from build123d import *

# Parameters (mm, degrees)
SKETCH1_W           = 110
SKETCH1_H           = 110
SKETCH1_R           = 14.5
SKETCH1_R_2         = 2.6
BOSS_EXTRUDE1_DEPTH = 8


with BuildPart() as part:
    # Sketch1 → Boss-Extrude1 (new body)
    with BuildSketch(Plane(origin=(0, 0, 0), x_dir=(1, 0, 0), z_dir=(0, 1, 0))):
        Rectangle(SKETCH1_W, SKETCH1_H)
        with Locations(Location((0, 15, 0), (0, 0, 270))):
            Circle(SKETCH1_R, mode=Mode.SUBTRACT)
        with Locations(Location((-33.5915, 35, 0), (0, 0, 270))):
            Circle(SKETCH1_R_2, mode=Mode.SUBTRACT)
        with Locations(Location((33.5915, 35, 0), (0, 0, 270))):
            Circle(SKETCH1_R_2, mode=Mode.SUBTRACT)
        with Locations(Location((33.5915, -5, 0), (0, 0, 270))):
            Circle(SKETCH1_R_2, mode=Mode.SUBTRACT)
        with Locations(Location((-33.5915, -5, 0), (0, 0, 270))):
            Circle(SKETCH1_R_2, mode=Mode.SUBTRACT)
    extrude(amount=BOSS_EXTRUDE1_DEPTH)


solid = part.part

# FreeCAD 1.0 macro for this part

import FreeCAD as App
import Part
import Sketcher

V = App.Vector


def add_polygon(sketch, points):
    """Adds a closed chain of lines whose ends are joined by coincident constraints."""
    first, n = sketch.GeometryCount, len(points)
    for a, b in zip(points, points[1:] + points[:1]):
        sketch.addGeometry(Part.LineSegment(App.Vector(*a, 0), App.Vector(*b, 0)), False)
    for i in range(n):
        sketch.addConstraint(Sketcher.Constraint("Coincident", first + i, 2, first + (i + 1) % n, 1))

doc = App.newDocument("Part")
body = doc.addObject("PartDesign::Body", "Body")

# Sketch on XZ plane
sketch1 = doc.addObject("Sketcher::SketchObject", "Sketch")
body.addObject(sketch1)
sketch1.AttachmentSupport = (doc.XZ_Plane, [""])
sketch1.MapMode = "FlatFace"
add_polygon(sketch1, [(-55, -55), (-55, 55), (55, 55), (55, -55)])  # lines 0-3
sketch1.addGeometry(Part.Circle(V(-33.6, 5, 0), V(0, 0, 1), 2.6), False)  # 4
sketch1.addGeometry(Part.Circle(V(33.6, 5, 0), V(0, 0, 1), 2.6), False)  # 5
sketch1.addGeometry(Part.Circle(V(-33.6, -35, 0), V(0, 0, 1), 2.6), False)  # 6
sketch1.addGeometry(Part.Circle(V(0, -15, 0), V(0, 0, 1), 14.5), False)  # 7
sketch1.addGeometry(Part.Circle(V(33.6, -35, 0), V(0, 0, 1), 2.6), False)  # 8
sketch1.addConstraint([
    Sketcher.Constraint("Vertical", 0),
    Sketcher.Constraint("Horizontal", 1),
    Sketcher.Constraint("Vertical", 2),
    Sketcher.Constraint("Horizontal", 3),
    Sketcher.Constraint("Equal", 4, 5),
    Sketcher.Constraint("Equal", 5, 6),
    Sketcher.Constraint("Equal", 6, 8),
    Sketcher.Constraint("Symmetric", 0, 2, 2, 2, -1, 1),
    Sketcher.Constraint("Symmetric", 4, 3, 5, 3, -2),
    Sketcher.Constraint("Symmetric", 6, 3, 8, 3, -2),
    Sketcher.Constraint("PointOnObject", 7, 3, -2),
    Sketcher.Constraint("Vertical", 4, 3, 6, 3),
    Sketcher.Constraint("Equal", 3, 0),
    Sketcher.Constraint("Diameter", 7, 29.0),
    Sketcher.Constraint("Diameter", 4, 5.2),
    Sketcher.Constraint("DistanceX", 1, 1, 1, 2, 110.0),
    Sketcher.Constraint("DistanceY", -1, 1, 4, 3, 5.0),
    Sketcher.Constraint("DistanceY", 6, 3, -1, 1, 35.0),
    Sketcher.Constraint("DistanceY", 7, 3, -1, 1, 15.0),
    Sketcher.Constraint("DistanceX", 4, 3, 5, 3, 67.183),
])
pad1 = doc.addObject("PartDesign::Pad", "Pad")
body.addObject(pad1)
pad1.Profile = sketch1
pad1.Length = 8
pad1.Reversed = True

doc.recompute()
